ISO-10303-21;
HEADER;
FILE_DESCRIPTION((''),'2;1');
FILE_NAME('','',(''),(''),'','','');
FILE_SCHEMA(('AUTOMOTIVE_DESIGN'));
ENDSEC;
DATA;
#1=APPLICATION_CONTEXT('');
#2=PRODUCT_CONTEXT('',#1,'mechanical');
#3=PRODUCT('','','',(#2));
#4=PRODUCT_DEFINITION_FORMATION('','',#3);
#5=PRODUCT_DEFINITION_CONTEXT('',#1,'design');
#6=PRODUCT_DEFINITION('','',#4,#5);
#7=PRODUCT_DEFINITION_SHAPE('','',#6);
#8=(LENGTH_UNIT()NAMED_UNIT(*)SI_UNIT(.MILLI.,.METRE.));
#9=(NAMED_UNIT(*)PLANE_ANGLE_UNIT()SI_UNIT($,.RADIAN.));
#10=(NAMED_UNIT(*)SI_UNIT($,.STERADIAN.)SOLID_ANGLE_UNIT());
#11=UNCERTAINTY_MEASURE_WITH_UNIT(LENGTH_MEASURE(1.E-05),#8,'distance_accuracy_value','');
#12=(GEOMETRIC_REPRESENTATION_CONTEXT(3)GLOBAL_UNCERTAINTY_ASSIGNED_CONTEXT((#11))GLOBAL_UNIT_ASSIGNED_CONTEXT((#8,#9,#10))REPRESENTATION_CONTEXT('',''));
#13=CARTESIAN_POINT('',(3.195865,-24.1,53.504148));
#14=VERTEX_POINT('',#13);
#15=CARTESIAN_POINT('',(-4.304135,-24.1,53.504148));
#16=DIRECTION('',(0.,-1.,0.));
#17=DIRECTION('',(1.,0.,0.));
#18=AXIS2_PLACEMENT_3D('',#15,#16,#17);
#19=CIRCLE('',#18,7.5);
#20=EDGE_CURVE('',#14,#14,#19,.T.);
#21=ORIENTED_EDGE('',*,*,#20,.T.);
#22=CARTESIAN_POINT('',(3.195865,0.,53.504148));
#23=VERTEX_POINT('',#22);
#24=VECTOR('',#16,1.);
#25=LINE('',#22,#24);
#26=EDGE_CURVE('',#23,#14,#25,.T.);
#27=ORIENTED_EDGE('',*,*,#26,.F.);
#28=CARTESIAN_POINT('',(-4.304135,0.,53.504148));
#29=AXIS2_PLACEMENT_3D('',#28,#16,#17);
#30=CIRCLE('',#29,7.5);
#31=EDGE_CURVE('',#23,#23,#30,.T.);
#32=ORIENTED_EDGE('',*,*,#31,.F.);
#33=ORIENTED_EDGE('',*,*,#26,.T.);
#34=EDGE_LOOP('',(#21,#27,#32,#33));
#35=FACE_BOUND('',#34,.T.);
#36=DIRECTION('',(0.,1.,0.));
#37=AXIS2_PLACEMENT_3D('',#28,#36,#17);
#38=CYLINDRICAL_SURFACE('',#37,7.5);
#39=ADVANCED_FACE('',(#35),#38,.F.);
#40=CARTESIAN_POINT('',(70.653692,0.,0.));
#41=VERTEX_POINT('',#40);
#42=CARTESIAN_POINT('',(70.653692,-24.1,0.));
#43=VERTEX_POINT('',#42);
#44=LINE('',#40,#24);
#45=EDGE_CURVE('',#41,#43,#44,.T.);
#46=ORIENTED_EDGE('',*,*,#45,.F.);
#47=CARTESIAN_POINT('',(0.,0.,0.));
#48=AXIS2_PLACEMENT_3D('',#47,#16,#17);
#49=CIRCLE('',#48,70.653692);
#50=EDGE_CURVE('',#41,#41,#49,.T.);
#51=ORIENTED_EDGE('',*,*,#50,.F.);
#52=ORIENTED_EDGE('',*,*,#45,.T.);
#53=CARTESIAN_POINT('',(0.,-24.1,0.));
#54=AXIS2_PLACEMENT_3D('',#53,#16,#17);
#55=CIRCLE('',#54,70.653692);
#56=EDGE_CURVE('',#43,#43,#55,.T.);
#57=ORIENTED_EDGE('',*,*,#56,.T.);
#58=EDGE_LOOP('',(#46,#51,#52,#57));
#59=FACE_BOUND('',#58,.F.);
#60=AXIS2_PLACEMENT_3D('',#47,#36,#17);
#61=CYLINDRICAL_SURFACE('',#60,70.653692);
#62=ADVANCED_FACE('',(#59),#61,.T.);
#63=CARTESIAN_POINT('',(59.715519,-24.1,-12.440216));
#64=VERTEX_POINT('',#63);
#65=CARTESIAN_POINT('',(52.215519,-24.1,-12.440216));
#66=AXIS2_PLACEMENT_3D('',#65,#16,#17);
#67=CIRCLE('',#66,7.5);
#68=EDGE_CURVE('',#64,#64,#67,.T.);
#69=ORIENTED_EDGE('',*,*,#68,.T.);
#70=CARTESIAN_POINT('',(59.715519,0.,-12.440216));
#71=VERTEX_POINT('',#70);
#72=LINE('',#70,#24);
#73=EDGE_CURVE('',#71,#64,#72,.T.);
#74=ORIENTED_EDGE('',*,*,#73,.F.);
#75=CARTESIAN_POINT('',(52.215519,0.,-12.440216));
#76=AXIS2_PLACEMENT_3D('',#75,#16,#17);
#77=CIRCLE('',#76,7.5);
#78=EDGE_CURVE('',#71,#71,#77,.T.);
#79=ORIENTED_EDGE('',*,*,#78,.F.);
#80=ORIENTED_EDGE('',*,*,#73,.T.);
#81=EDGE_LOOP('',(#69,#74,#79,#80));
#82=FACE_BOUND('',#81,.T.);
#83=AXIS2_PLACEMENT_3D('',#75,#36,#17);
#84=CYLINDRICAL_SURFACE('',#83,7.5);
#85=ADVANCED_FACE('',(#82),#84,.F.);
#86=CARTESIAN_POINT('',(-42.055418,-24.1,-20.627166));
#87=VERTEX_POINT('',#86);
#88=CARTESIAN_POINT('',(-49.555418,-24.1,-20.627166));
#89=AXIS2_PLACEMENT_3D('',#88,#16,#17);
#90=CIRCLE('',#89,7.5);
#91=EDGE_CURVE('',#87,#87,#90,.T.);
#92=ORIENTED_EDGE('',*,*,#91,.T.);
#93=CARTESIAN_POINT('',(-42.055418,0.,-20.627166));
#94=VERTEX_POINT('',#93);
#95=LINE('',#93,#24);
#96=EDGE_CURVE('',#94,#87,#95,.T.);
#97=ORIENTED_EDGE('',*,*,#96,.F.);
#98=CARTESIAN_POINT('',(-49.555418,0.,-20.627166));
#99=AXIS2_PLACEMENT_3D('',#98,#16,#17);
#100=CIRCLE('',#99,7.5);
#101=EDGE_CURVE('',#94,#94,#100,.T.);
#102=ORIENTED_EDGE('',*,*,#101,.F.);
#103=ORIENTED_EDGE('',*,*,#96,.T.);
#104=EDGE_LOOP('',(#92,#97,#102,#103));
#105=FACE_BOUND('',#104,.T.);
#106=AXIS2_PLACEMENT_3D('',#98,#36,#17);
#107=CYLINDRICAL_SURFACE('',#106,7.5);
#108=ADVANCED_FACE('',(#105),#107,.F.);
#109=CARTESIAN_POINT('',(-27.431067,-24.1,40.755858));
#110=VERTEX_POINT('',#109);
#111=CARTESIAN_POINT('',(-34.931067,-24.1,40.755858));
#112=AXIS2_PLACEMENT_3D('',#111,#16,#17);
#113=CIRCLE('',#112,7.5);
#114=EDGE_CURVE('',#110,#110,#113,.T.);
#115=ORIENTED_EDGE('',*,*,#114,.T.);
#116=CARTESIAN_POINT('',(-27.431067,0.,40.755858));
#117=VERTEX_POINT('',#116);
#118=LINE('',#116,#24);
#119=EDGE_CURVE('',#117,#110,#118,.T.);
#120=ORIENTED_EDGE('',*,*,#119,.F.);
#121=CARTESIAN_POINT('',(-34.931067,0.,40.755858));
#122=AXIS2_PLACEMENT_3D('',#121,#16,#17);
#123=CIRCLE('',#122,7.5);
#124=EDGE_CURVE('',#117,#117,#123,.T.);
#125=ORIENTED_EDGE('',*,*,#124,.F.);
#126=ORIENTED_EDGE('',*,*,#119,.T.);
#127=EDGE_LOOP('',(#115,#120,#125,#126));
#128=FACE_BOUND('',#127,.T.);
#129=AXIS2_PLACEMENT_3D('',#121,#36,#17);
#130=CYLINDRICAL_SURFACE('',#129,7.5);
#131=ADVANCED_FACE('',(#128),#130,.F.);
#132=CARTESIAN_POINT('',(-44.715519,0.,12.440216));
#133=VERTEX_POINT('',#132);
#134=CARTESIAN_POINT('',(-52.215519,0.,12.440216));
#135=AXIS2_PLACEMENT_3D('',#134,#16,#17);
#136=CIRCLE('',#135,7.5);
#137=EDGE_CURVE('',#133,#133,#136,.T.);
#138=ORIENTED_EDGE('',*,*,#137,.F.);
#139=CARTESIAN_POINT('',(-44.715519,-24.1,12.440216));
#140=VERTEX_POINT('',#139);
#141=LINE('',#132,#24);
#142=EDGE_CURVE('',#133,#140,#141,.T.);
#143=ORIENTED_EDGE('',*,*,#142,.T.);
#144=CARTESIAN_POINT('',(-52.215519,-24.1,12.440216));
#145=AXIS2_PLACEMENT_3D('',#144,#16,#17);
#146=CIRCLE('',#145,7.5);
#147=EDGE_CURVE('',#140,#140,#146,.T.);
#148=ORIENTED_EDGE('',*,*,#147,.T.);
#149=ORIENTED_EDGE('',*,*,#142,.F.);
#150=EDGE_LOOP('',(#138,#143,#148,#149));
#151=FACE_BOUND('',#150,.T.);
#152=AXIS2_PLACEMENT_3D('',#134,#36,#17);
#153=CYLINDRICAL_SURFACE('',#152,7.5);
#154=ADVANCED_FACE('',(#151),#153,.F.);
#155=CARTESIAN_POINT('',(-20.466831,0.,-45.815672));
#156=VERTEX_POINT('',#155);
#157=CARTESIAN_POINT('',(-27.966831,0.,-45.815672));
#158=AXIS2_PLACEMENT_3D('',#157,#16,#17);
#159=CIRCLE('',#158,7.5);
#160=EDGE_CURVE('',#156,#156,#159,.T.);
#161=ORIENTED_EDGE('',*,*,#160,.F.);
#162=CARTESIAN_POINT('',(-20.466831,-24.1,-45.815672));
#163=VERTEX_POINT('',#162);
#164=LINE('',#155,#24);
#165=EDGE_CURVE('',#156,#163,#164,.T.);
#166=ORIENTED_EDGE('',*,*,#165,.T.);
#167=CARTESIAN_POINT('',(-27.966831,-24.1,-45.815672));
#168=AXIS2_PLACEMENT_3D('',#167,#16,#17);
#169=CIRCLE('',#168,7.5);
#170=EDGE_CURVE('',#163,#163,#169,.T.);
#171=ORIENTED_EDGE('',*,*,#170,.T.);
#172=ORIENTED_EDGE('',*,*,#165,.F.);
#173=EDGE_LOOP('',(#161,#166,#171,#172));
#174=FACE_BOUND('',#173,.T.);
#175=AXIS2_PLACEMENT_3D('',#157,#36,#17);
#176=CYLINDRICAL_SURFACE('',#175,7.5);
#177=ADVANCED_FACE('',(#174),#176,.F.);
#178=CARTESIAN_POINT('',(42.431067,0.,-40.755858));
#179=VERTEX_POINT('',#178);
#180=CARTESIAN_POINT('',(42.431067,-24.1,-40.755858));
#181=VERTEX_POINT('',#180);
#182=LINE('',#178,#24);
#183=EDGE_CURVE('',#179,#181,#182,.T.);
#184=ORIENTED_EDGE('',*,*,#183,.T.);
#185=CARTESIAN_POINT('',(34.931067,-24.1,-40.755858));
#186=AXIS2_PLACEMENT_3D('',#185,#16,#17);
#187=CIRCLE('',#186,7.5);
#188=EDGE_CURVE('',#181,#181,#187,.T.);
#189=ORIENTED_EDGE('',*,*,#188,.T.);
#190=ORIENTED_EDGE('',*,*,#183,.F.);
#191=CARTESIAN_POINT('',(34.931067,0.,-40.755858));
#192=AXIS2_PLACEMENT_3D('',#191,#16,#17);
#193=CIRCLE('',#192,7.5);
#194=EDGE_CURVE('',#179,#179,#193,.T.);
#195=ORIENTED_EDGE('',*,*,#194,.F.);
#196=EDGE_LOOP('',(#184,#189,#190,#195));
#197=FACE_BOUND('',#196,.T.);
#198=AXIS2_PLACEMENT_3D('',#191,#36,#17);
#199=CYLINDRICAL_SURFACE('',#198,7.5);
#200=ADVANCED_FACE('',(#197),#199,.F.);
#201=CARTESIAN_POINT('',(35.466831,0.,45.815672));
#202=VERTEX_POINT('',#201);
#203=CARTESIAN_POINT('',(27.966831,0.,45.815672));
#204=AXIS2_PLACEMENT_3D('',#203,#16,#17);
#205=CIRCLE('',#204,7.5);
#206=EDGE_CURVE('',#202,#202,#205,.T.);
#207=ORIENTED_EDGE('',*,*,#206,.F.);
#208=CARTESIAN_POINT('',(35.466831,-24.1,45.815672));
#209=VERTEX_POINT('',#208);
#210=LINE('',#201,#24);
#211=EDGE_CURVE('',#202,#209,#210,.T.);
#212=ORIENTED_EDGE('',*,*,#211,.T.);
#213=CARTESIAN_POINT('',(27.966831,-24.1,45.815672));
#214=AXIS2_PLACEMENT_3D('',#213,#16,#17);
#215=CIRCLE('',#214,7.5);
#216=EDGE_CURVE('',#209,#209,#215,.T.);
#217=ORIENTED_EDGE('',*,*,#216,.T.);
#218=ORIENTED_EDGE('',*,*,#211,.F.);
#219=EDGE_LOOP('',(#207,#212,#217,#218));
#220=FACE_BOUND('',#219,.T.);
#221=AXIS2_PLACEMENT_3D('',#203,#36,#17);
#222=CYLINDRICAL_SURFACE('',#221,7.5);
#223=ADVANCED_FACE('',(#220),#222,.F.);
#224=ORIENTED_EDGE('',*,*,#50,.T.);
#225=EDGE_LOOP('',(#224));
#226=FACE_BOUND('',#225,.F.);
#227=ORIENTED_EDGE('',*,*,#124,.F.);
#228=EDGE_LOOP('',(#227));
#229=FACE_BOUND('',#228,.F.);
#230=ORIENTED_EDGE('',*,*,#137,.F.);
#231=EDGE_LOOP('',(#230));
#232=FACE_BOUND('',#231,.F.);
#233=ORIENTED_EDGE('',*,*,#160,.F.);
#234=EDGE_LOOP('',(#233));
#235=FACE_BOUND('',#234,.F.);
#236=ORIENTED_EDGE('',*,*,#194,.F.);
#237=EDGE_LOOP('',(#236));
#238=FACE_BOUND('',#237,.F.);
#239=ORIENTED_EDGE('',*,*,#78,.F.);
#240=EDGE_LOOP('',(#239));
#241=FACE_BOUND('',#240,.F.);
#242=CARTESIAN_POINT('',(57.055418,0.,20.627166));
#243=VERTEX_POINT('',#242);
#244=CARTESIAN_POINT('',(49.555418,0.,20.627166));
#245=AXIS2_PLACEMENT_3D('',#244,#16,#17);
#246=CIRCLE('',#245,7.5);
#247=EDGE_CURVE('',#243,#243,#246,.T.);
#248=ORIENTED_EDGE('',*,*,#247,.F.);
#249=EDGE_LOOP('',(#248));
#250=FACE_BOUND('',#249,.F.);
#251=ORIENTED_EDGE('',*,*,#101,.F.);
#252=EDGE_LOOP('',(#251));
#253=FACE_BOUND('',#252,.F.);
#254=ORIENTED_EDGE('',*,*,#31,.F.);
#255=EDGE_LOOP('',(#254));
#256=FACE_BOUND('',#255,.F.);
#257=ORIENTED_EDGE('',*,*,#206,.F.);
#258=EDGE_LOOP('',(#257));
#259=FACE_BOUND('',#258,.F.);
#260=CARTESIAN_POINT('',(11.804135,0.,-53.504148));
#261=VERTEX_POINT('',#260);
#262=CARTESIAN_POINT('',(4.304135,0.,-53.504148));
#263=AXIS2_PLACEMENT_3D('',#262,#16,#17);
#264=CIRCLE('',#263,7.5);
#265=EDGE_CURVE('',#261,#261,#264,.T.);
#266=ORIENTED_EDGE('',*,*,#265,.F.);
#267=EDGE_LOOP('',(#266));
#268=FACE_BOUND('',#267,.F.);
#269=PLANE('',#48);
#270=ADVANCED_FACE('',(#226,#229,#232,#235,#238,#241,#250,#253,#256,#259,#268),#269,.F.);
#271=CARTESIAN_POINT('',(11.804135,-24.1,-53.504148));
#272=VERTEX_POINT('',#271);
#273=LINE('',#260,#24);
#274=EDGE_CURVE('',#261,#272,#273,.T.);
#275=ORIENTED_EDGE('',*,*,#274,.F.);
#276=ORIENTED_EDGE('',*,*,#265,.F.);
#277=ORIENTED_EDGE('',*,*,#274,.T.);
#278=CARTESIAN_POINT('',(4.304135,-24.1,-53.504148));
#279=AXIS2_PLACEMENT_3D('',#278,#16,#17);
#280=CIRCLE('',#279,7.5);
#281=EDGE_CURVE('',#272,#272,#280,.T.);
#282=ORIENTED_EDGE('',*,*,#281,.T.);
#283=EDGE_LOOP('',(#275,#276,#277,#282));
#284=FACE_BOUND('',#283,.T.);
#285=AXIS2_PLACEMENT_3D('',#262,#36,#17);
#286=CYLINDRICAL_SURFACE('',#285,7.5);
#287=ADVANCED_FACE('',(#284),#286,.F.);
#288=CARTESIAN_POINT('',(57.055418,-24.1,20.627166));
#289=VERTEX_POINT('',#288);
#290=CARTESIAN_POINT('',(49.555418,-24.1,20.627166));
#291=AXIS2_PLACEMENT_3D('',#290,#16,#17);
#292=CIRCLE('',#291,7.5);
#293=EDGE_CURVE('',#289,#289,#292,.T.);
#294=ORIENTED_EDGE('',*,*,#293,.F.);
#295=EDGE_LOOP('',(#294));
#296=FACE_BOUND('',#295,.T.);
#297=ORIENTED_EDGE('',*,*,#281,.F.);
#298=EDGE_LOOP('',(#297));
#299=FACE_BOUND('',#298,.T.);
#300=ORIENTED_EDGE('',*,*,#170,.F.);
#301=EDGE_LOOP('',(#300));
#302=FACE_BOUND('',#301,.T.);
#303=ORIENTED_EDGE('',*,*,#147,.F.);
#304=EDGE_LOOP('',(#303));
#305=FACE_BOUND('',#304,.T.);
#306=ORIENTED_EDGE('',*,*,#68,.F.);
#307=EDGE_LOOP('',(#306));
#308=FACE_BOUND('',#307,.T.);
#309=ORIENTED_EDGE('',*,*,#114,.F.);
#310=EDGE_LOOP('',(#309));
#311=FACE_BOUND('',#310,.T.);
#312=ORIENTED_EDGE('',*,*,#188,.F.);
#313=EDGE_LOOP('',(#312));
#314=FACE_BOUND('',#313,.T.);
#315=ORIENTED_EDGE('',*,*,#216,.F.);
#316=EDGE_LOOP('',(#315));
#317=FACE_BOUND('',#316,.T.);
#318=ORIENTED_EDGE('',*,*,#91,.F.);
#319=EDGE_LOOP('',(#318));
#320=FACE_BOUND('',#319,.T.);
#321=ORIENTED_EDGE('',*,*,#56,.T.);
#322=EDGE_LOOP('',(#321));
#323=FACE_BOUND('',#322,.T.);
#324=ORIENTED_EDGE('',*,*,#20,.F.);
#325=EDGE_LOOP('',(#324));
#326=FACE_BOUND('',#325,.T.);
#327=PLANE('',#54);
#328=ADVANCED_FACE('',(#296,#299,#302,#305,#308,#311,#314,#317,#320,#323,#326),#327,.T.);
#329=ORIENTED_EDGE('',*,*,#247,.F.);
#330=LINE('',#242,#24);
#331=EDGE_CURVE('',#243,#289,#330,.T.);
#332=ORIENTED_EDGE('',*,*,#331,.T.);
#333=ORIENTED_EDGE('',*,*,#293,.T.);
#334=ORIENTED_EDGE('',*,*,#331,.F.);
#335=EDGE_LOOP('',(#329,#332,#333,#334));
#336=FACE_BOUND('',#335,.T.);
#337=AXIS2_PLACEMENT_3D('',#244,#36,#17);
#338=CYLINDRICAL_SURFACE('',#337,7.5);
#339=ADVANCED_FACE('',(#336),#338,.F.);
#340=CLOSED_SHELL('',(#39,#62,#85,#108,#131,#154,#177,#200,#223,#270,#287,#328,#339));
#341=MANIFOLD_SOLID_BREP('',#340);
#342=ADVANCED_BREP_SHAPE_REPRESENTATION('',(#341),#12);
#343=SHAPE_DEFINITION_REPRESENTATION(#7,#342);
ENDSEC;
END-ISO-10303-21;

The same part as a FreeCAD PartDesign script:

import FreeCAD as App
import Part
import Sketcher

V = App.Vector
Q = App.Units.Quantity

doc = App.newDocument("Part")
body = doc.addObject("PartDesign::Body", "Body")

# Sketch on XZ plane
sketch1 = doc.addObject("Sketcher::SketchObject", "Sketch")
body.addObject(sketch1)
sketch1.AttachmentSupport = (doc.XZ_Plane, [""])
sketch1.MapMode = "FlatFace"
sketch1.addGeometry([
    Part.Circle(V(0, 0, 0), V(0, 0, 1), 71),  # 0
    Part.Circle(V(-28, -46, 0), V(0, 0, 1), 8),  # 1
    Part.Circle(V(-50, -21, 0), V(0, 0, 1), 8),  # 2
    Part.Circle(V(4, -54, 0), V(0, 0, 1), 8),  # 3
    Part.Circle(V(35, -41, 0), V(0, 0, 1), 8),  # 4
    Part.Circle(V(52, -12, 0), V(0, 0, 1), 8),  # 5
    Part.Circle(V(-52, 12, 0), V(0, 0, 1), 8),  # 6
    Part.Circle(V(-35, 41, 0), V(0, 0, 1), 8),  # 7
    Part.Circle(V(-4, 54, 0), V(0, 0, 1), 8),  # 8
    Part.Circle(V(50, 21, 0), V(0, 0, 1), 8),  # 9
    Part.Circle(V(28, 46, 0), V(0, 0, 1), 8),  # 10
], False)
sketch1.addConstraint([
    Sketcher.Constraint("Coincident", 0, 3, -1, 1),
    Sketcher.Constraint("Equal", 1, 2),
    Sketcher.Constraint("Equal", 2, 3),
    Sketcher.Constraint("Equal", 3, 4),
    Sketcher.Constraint("Equal", 4, 5),
    Sketcher.Constraint("Equal", 5, 6),
    Sketcher.Constraint("Equal", 6, 7),
    Sketcher.Constraint("Equal", 7, 8),
    Sketcher.Constraint("Equal", 8, 9),
    Sketcher.Constraint("Equal", 9, 10),
    Sketcher.Constraint("Symmetric", 5, 3, 6, 3, -1, 1),
    Sketcher.Constraint("Symmetric", 4, 3, 7, 3, -1, 1),
    Sketcher.Constraint("Symmetric", 3, 3, 8, 3, -1, 1),
    Sketcher.Constraint("Symmetric", 2, 3, 9, 3, -1, 1),
    Sketcher.Constraint("Symmetric", 1, 3, 10, 3, -1, 1),
    Sketcher.Constraint("Diameter", 1, Q("15 mm")),
    Sketcher.Constraint("Diameter", 0, Q("141.307384 mm")),
    Sketcher.Constraint("DistanceX", 6, 3, 2, 3, Q("2.660101 mm")),
    Sketcher.Constraint("DistanceX", 1, 3, -1, 1, Q("27.966831 mm")),
    Sketcher.Constraint("DistanceX", 2, 3, -1, 1, Q("49.555418 mm")),
    Sketcher.Constraint("DistanceY", 4, 3, -1, 1, Q("40.755858 mm")),
    Sketcher.Constraint("DistanceY", 3, 3, 2, 3, Q("32.876982 mm")),
    Sketcher.Constraint("DistanceX", 3, 3, 4, 3, Q("30.626932 mm")),
    Sketcher.Constraint("DistanceY", 3, 3, 4, 3, Q("12.74829 mm")),
    Sketcher.Constraint("DistanceY", 2, 3, 5, 3, Q("8.18695 mm")),
    Sketcher.Constraint("DistanceX", 2, 3, 7, 3, Q("14.624351 mm")),
    Sketcher.Constraint("DistanceY", 1, 3, 7, 3, Q("86.57153 mm")),
])
pad1 = doc.addObject("PartDesign::Pad", "Pad")
body.addObject(pad1)
pad1.Profile = sketch1
pad1.Length = 24.1

doc.recompute()
